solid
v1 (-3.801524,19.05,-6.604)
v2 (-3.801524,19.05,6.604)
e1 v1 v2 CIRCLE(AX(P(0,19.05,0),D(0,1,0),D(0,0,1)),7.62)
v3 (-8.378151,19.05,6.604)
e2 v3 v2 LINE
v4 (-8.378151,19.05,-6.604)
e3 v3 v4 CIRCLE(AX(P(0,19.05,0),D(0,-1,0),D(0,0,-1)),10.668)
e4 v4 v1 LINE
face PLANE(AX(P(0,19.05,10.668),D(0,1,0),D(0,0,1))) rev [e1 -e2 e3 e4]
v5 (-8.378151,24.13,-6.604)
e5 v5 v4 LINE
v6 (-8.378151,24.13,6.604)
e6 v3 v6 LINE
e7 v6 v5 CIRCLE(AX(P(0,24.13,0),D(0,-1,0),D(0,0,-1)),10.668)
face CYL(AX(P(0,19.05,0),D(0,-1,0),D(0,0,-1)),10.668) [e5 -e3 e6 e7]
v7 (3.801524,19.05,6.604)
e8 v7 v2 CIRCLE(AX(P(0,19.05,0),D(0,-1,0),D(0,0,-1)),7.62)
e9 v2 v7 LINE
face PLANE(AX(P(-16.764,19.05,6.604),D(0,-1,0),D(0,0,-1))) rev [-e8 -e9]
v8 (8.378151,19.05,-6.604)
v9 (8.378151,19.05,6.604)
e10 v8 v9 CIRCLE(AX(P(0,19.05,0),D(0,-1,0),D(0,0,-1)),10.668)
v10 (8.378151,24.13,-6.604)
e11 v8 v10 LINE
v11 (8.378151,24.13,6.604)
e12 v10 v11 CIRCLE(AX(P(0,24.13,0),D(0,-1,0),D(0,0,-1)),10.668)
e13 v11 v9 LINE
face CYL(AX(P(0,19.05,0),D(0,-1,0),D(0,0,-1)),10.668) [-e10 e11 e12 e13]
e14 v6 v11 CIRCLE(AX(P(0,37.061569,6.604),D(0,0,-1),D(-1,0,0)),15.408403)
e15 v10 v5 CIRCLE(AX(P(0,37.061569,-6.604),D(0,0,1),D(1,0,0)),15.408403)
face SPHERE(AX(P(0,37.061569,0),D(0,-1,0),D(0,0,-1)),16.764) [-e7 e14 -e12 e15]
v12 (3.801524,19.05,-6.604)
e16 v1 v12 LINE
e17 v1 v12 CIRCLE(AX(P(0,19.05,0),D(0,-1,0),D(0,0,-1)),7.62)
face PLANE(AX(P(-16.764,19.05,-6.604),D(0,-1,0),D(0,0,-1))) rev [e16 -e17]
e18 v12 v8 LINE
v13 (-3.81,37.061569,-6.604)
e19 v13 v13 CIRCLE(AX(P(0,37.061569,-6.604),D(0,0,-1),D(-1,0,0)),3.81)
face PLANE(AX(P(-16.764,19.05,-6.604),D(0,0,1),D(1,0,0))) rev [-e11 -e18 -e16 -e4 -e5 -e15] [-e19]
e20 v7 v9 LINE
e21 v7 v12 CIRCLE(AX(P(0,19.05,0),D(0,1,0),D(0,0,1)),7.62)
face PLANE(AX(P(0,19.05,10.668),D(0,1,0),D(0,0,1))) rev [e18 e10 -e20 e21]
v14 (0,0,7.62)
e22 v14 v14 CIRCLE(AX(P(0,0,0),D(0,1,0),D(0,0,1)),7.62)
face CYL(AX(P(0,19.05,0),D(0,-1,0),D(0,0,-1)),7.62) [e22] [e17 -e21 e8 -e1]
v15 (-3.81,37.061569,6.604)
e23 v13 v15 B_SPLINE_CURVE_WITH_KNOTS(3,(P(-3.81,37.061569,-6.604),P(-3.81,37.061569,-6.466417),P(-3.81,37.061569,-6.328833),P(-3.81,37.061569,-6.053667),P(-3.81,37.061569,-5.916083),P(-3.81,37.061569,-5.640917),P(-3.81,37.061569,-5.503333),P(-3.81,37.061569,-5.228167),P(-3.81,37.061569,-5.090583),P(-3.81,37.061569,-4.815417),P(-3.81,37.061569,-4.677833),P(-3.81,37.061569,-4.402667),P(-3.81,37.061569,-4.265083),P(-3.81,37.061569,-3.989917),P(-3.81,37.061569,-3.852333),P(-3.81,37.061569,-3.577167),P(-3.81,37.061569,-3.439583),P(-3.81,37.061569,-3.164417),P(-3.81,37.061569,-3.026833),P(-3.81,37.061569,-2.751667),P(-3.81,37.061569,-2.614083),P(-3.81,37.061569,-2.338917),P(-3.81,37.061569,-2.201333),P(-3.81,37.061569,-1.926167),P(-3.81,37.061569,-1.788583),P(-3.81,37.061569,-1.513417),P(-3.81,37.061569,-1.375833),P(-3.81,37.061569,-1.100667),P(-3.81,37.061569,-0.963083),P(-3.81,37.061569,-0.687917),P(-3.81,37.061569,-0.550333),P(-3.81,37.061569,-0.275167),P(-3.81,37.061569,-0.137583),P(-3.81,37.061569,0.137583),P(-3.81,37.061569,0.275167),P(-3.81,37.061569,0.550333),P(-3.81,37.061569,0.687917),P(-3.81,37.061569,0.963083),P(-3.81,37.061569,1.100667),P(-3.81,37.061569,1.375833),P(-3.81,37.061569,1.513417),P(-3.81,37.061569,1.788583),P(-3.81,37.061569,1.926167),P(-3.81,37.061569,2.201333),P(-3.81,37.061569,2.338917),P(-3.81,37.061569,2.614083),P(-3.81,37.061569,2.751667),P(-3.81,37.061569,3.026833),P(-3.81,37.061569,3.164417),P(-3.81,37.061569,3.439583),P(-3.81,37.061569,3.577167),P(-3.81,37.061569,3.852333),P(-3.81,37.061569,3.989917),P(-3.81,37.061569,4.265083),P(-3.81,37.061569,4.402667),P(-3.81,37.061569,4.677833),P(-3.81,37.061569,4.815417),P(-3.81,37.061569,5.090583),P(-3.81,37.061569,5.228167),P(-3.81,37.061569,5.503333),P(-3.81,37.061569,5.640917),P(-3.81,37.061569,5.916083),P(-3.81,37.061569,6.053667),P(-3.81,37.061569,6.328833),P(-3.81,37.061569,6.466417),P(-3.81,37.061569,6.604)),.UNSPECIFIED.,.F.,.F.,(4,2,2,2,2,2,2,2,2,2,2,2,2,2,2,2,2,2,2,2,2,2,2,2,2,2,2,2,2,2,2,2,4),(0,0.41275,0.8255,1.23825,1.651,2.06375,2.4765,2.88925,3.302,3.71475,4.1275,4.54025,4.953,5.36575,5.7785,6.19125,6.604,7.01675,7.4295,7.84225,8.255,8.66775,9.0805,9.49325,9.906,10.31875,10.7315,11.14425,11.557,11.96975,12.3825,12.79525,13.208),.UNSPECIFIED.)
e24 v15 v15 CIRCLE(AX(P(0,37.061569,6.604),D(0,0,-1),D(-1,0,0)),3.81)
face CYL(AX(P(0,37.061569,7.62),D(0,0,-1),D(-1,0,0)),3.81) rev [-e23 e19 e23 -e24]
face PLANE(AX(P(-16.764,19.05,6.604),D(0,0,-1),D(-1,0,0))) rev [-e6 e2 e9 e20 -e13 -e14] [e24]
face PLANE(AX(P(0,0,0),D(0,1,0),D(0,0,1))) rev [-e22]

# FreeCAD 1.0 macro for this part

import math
import FreeCAD as App
import Part
import Sketcher
Q = App.Units.Quantity

doc = App.newDocument("Part")
body = doc.addObject("PartDesign::Body", "Body")

# Sketch on XZ plane
sketch1 = doc.addObject("Sketcher::SketchObject", "Sketch")
body.addObject(sketch1)
sketch1.AttachmentSupport = (doc.XZ_Plane, [""])
sketch1.MapMode = "FlatFace"
sketch1.addGeometry(Part.Circle(App.Vector(0, 0, 0), App.Vector(0, 0, 1), 7.62), False)
sketch1.addConstraint([
    Sketcher.Constraint("Coincident", 0, 3, -1, 1),
    Sketcher.Constraint("Diameter", 0, Q("0.6 in")),
])
pad1 = doc.addObject("PartDesign::Pad", "Pad")
body.addObject(pad1)
pad1.Profile = sketch1
pad1.Length = Q("0.75 in")
pad1.Reversed = True

# Sketch on YZ plane
sketch2 = doc.addObject("Sketcher::SketchObject", "Sketch001")
body.addObject(sketch2)
sketch2.AttachmentSupport = (doc.YZ_Plane, [""])
sketch2.MapMode = "FlatFace"
sketch2.addGeometry([
    Part.LineSegment(App.Vector(24.13, 10.668, 0), App.Vector(19.05, 10.668, 0)),
    Part.LineSegment(App.Vector(19.05, 10.668, 0), App.Vector(19.05, 0, 0)),
    Part.LineSegment(App.Vector(19.05, 0, 0), App.Vector(53.825569, 0, 0)),
    Part.ArcOfCircle(Part.Circle(App.Vector(37.061569, 0, 0), App.Vector(0, 0, 1), 16.764), math.radians(0), math.radians(140.478804)),
], False)
sketch2.addConstraint([
    Sketcher.Constraint("Coincident", 0, 2, 1, 1),
    Sketcher.Constraint("Coincident", 1, 2, 2, 1),
    Sketcher.Constraint("Coincident", 2, 2, 3, 1),
    Sketcher.Constraint("Coincident", 3, 2, 0, 1),
    Sketcher.Constraint("Horizontal", 0),
    Sketcher.Constraint("Vertical", 1),
    Sketcher.Constraint("Horizontal", 2),
    Sketcher.Constraint("PointOnObject", 3, 3, -1),
    Sketcher.Constraint("PointOnObject", 1, 2, -1),
    Sketcher.Constraint("Radius", 3, Q("0.66 in")),
    Sketcher.Constraint("DistanceX", 0, 2, 0, 1, Q("0.2 in")),
    Sketcher.Constraint("DistanceY", 1, 2, 1, 1, Q("0.42 in")),
    Sketcher.Constraint("DistanceX", -1, 1, 0, 2, Q("0.75 in")),
])
revolution = doc.addObject("PartDesign::Revolution", "Revolution")
body.addObject(revolution)
revolution.Profile = sketch2
revolution.ReferenceAxis = (sketch2, ["H_Axis"])
revolution.Angle = 360

# Sketch on YZ plane
sketch3 = doc.addObject("Sketcher::SketchObject", "Sketch002")
body.addObject(sketch3)
sketch3.AttachmentSupport = (doc.YZ_Plane, [""])
sketch3.MapMode = "FlatFace"
sketch3.addGeometry([
    Part.LineSegment(App.Vector(63.588154, 28.23887, 0), App.Vector(19.05, 28.23887, 0)),  # 0
    Part.LineSegment(App.Vector(19.05, 28.23887, 0), App.Vector(19.05, 6.604, 0)),  # 1
    Part.LineSegment(App.Vector(19.05, 6.604, 0), App.Vector(63.588154, 6.604, 0)),  # 2
    Part.LineSegment(App.Vector(63.588154, 6.604, 0), App.Vector(63.588154, 28.23887, 0)),  # 3
    Part.LineSegment(App.Vector(63.588154, -6.604, 0), App.Vector(19.05, -6.604, 0)),  # 4
    Part.LineSegment(App.Vector(19.05, -6.604, 0), App.Vector(19.05, -31.55707, 0)),  # 5
    Part.LineSegment(App.Vector(19.05, -31.55707, 0), App.Vector(63.588154, -31.55707, 0)),  # 6
    Part.LineSegment(App.Vector(63.588154, -31.55707, 0), App.Vector(63.588154, -6.604, 0)),  # 7
], False)
sketch3.addConstraint([
    Sketcher.Constraint("Coincident", 0, 2, 1, 1),
    Sketcher.Constraint("Coincident", 1, 2, 2, 1),
    Sketcher.Constraint("Coincident", 2, 2, 3, 1),
    Sketcher.Constraint("Coincident", 3, 2, 0, 1),
    Sketcher.Constraint("Coincident", 4, 2, 5, 1),
    Sketcher.Constraint("Coincident", 5, 2, 6, 1),
    Sketcher.Constraint("Coincident", 6, 2, 7, 1),
    Sketcher.Constraint("Coincident", 7, 2, 4, 1),
    Sketcher.Constraint("Horizontal", 0),
    Sketcher.Constraint("Vertical", 1),
    Sketcher.Constraint("Horizontal", 2),
    Sketcher.Constraint("Vertical", 3),
    Sketcher.Constraint("Horizontal", 4),
    Sketcher.Constraint("Vertical", 5),
    Sketcher.Constraint("Horizontal", 6),
    Sketcher.Constraint("Vertical", 7),
    Sketcher.Constraint("Symmetric", 1, 2, 4, 2, -1),
    Sketcher.Constraint("Vertical", 3, 2, 6, 2),
    Sketcher.Constraint("DistanceX", -1, 1, 0, 2, Q("0.75 in")),
    Sketcher.Constraint("DistanceY", -1, 1, 1, 2, Q("0.26 in")),
    Sketcher.Constraint("DistanceY", 1, 2, 1, 1, Q("21.63487 mm")),
    Sketcher.Constraint("DistanceY", 5, 2, 5, 1, Q("24.95307 mm")),
    Sketcher.Constraint("DistanceX", 0, 2, 0, 1, Q("44.538154 mm")),
])
pocket1 = doc.addObject("PartDesign::Pocket", "Pocket")
body.addObject(pocket1)
pocket1.Profile = sketch3
pocket1.Type = "ThroughAll"
pocket1.Midplane = True

# Sketch on XY plane
sketch4 = doc.addObject("Sketcher::SketchObject", "Sketch003")
body.addObject(sketch4)
sketch4.AttachmentSupport = (doc.XY_Plane, [""])
sketch4.MapMode = "FlatFace"
sketch4.AttachmentOffset = App.Placement(App.Vector(0, 0, -0.26 * 25.4), App.Rotation())
sketch4.addGeometry(Part.Circle(App.Vector(0, 37.061569, 0), App.Vector(0, 0, 1), 3.81), False)
sketch4.addConstraint([
    Sketcher.Constraint("PointOnObject", 0, 3, -2),
    Sketcher.Constraint("Diameter", 0, Q("0.3 in")),
    Sketcher.Constraint("DistanceY", -1, 1, 0, 3, Q("37.061569 mm")),
])
pocket2 = doc.addObject("PartDesign::Pocket", "Pocket001")
body.addObject(pocket2)
pocket2.Profile = sketch4
pocket2.Type = "ThroughAll"
pocket2.Midplane = True

doc.recompute()
